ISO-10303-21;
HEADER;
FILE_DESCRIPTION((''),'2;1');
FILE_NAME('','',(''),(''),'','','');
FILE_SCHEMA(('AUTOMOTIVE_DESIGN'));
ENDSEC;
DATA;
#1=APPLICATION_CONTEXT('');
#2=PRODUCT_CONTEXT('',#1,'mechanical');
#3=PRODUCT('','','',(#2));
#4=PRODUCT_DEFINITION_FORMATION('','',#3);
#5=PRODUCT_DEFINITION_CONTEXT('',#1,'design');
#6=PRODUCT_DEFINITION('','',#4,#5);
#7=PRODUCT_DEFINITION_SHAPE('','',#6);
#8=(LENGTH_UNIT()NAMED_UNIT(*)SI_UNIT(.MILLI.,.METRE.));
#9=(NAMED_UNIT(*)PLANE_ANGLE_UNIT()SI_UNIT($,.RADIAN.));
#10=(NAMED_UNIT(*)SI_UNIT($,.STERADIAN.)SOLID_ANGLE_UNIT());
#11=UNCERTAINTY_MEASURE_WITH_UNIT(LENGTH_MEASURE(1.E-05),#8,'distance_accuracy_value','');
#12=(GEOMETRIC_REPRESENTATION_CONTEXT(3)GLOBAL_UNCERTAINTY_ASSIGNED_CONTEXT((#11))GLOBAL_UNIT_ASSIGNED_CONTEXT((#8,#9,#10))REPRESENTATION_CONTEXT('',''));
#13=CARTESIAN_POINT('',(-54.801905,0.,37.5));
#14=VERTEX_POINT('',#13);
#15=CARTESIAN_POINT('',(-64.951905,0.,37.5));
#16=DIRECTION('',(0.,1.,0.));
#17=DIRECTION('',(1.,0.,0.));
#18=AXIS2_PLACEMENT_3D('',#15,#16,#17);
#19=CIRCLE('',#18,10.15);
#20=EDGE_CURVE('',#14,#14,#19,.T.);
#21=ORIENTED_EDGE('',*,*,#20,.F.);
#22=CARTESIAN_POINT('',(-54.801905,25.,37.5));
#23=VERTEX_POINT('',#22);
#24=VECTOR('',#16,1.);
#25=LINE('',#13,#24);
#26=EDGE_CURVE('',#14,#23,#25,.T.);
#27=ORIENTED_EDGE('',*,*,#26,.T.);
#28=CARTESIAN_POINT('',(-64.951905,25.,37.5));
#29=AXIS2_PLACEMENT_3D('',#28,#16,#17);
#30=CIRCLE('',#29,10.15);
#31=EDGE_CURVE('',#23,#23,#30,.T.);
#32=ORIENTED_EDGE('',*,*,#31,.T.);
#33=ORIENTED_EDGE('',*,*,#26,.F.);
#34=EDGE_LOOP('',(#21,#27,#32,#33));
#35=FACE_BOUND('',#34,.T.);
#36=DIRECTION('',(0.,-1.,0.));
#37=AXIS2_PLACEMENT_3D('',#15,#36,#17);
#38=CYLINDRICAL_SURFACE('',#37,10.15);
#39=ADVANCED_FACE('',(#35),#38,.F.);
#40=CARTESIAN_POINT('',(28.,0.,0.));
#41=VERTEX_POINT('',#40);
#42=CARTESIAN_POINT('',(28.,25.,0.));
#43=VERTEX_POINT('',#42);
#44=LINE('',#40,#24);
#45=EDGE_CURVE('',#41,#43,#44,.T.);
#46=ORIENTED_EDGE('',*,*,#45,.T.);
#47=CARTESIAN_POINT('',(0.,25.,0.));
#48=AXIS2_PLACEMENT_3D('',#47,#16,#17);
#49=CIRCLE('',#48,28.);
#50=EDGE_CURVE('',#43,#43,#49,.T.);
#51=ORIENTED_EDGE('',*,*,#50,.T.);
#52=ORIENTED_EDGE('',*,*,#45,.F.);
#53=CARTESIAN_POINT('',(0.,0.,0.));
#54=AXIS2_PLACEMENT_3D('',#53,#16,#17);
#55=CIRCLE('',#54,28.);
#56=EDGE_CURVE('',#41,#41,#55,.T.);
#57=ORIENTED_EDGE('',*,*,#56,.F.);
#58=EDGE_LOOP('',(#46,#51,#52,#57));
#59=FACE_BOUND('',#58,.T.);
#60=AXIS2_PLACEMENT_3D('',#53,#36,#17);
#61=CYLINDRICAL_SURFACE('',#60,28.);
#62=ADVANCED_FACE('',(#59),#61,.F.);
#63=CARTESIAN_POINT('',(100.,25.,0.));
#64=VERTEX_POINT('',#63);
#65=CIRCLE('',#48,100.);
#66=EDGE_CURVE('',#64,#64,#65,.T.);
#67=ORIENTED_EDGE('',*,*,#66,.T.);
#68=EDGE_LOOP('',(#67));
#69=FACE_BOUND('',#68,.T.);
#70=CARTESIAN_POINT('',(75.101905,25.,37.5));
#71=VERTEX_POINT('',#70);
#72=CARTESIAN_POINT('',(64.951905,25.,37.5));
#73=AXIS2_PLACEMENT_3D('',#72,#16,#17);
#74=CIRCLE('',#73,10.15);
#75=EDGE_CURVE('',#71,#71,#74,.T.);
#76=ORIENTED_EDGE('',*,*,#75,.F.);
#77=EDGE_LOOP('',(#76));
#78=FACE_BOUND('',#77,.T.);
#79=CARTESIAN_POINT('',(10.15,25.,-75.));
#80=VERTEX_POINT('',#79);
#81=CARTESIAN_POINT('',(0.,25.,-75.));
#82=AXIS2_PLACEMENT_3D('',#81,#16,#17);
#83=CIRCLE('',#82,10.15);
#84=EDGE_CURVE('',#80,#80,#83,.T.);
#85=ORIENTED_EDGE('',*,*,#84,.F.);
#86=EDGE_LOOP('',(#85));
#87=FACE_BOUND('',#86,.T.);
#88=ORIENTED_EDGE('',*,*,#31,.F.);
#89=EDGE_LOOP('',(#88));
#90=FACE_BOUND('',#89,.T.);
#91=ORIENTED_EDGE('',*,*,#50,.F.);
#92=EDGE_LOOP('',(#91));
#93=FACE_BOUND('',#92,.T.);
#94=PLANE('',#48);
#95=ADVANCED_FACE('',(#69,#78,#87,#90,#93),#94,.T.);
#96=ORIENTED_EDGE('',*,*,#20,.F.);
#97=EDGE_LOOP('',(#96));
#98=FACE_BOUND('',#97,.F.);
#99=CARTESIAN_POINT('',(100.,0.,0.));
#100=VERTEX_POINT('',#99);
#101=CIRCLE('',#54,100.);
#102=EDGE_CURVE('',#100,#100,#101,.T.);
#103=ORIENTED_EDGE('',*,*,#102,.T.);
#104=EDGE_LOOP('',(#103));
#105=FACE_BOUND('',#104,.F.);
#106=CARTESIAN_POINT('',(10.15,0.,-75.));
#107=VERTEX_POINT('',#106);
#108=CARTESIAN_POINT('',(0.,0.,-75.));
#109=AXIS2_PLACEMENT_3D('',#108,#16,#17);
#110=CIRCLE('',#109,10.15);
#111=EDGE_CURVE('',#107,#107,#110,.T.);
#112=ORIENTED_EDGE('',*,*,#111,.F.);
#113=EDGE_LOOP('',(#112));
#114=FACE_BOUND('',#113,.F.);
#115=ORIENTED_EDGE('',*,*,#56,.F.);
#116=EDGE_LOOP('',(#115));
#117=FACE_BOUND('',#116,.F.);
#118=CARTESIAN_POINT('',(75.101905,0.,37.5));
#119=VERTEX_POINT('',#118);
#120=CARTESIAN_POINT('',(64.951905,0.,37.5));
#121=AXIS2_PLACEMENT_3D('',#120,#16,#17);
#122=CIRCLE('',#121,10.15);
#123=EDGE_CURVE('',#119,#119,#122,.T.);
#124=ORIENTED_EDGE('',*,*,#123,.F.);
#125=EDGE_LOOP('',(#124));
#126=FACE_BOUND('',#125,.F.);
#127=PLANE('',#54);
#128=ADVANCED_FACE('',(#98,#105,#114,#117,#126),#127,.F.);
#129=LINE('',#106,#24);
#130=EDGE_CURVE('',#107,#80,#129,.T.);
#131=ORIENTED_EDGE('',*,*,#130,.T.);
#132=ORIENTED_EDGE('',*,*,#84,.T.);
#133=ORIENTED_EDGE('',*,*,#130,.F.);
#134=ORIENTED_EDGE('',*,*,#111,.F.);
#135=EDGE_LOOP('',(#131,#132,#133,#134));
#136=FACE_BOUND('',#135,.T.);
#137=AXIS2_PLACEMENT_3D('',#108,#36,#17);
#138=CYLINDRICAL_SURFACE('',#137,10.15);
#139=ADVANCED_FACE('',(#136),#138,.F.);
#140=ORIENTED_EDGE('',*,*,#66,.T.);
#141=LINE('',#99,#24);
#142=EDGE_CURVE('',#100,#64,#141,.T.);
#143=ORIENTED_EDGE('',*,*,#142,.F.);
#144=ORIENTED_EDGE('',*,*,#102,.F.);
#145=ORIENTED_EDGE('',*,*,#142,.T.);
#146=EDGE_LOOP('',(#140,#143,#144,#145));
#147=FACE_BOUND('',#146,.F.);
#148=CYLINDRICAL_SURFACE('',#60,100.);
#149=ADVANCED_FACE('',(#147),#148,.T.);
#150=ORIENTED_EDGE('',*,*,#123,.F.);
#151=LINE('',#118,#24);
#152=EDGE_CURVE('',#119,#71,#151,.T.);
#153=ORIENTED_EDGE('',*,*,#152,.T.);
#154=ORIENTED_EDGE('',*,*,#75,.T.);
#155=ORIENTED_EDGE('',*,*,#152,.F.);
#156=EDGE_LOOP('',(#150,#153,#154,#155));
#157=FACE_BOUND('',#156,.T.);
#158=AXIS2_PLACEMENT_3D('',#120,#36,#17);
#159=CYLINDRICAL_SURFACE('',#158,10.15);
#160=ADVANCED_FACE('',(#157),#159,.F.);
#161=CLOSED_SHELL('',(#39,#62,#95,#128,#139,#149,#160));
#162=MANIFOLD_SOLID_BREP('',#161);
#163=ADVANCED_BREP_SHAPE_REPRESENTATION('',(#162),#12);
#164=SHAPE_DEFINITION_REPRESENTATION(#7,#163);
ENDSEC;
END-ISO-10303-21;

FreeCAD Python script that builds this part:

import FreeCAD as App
import Part
import Sketcher
from FreeCAD import Vector

doc = App.newDocument("Part")
params = doc.addObject("Spreadsheet::Sheet", "Params")
for row, (alias, value) in enumerate([
    ("sketch1_diameter", "200 mm"),
    ("sketch1_diameter2", "56 mm"),
    ("sketch1_diameter3", "20.3 mm"),
    ("pad1_length", "25 mm"),
], start=1):
    params.set(f"A{row}", alias)
    params.set(f"B{row}", "=" + value)
    params.setAlias(f"B{row}", alias)

body = doc.addObject("PartDesign::Body", "Body")

# Sketch on XZ plane
sketch1 = body.newObject("Sketcher::SketchObject", "Sketch")
sketch1.AttachmentSupport = (doc.getObject("XZ_Plane"), [""])
sketch1.MapMode = "FlatFace"
sketch1.addGeometry(Part.Circle(Vector(0, 0, 0), Vector(0, 0, 1), 100), False)
sketch1.addGeometry(Part.Circle(Vector(-65, 38, 0), Vector(0, 0, 1), 10), False)
sketch1.addGeometry(Part.Circle(Vector(0, 0, 0), Vector(0, 0, 1), 28), False)
sketch1.addGeometry(Part.Circle(Vector(65, 38, 0), Vector(0, 0, 1), 10), False)
sketch1.addGeometry(Part.Circle(Vector(0, -75, 0), Vector(0, 0, 1), 10), False)
sketch1.addConstraint(Sketcher.Constraint("Coincident", 0, 3, -1, 1))
sketch1.addConstraint(Sketcher.Constraint("Coincident", 2, 3, -1, 1))
sketch1.addConstraint(Sketcher.Constraint("Equal", 1, 3))
sketch1.addConstraint(Sketcher.Constraint("Equal", 3, 4))
sketch1.addConstraint(Sketcher.Constraint("Symmetric", 1, 3, 3, 3, -2))
sketch1.addConstraint(Sketcher.Constraint("PointOnObject", 4, 3, -2))
sketch1.addConstraint(Sketcher.Constraint("Diameter", 0, 200.0))
sketch1.addConstraint(Sketcher.Constraint("Diameter", 2, 56.0))
sketch1.addConstraint(Sketcher.Constraint("Diameter", 1, 20.3))
sketch1.addConstraint(Sketcher.Constraint("DistanceY", 4, 3, -1, 1, 75.0))
sketch1.addConstraint(Sketcher.Constraint("DistanceY", -1, 1, 1, 3, 37.5))
sketch1.addConstraint(Sketcher.Constraint("DistanceX", 1, 3, 3, 3, 129.903811))
sketch1.setExpression("Constraints[6]", "Params.sketch1_diameter")
sketch1.setExpression("Constraints[7]", "Params.sketch1_diameter2")
sketch1.setExpression("Constraints[8]", "Params.sketch1_diameter3")
pad1 = body.newObject("PartDesign::Pad", "Pad")
pad1.Profile = sketch1
pad1.setExpression("Length", "Params.pad1_length")
pad1.Reversed = True

doc.recompute()
